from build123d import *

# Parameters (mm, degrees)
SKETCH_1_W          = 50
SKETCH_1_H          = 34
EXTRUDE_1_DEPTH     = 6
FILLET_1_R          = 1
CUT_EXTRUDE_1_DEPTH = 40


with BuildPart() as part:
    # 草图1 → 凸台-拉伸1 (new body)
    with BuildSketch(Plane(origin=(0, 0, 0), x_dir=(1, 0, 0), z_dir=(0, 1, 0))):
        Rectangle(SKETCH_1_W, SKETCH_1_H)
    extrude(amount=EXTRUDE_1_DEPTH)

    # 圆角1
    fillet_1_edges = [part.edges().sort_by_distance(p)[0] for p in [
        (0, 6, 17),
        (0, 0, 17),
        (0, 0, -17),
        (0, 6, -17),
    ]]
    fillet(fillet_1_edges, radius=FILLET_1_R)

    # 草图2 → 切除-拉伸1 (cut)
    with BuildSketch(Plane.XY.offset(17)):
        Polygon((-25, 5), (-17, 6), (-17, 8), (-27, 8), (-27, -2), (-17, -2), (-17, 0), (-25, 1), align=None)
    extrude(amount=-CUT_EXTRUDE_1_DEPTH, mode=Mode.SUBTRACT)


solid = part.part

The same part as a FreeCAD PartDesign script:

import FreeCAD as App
import Part
import Sketcher

V = App.Vector
Q = App.Units.Quantity


def edges_at(feature, points):
    """Names of the edges that pass closest to the given points."""
    edges = feature.Shape.Edges
    near = lambda p: min(range(len(edges)), key=lambda i: edges[i].distToShape(Part.Vertex(*p))[0])
    return sorted({f"Edge{near(p) + 1}" for p in points})


def add_polygon(sketch, points):
    """Adds a closed chain of lines whose ends are joined by coincident constraints."""
    first, n = sketch.GeometryCount, len(points)
    for a, b in zip(points, points[1:] + points[:1]):
        sketch.addGeometry(Part.LineSegment(App.Vector(*a, 0), App.Vector(*b, 0)), False)
    for i in range(n):
        sketch.addConstraint(Sketcher.Constraint("Coincident", first + i, 2, first + (i + 1) % n, 1))

doc = App.newDocument("Part")
body = doc.addObject("PartDesign::Body", "Body")

# Sketch on XZ plane
sketch1 = body.newObject("Sketcher::SketchObject", "Sketch")
sketch1.AttachmentSupport = (doc.getObject("XZ_Plane"), [""])
sketch1.MapMode = "FlatFace"
add_polygon(sketch1, [(-25, -17), (-25, 17), (25, 17), (25, -17)])  # lines 0-3
sketch1.addConstraint(Sketcher.Constraint("Vertical", 0))
sketch1.addConstraint(Sketcher.Constraint("Horizontal", 1))
sketch1.addConstraint(Sketcher.Constraint("Vertical", 2))
sketch1.addConstraint(Sketcher.Constraint("Horizontal", 3))
sketch1.addConstraint(Sketcher.Constraint("Symmetric", 0, 2, 2, 2, -1, 1))
sketch1.addConstraint(Sketcher.Constraint("DistanceX", 1, 1, 1, 2, Q("50 mm")))
sketch1.addConstraint(Sketcher.Constraint("DistanceY", 0, 1, 0, 2, Q("34 mm")))
pad1 = body.newObject("PartDesign::Pad", "Pad")
pad1.Profile = sketch1
pad1.Length = 6
pad1.Reversed = True
doc.recompute()

fillet = body.newObject("PartDesign::Fillet", "Fillet")
fillet.Base = (pad1, edges_at(pad1, [
    (0, 6, 17),
    (0, 0, 17),
    (0, 0, -17),
    (0, 6, -17),
]))
fillet.Radius = 1

# Sketch on XY plane
sketch2 = body.newObject("Sketcher::SketchObject", "Sketch001")
sketch2.AttachmentSupport = (doc.getObject("XY_Plane"), [""])
sketch2.MapMode = "FlatFace"
sketch2.AttachmentOffset = App.Placement(V(0, 0, 17), App.Rotation())
add_polygon(sketch2, [(-25, 5), (-17, 6), (-17, 8), (-27, 8), (-27, -2), (-17, -2), (-17, 0), (-25, 1)])  # lines 0-7
sketch2.addConstraint(Sketcher.Constraint("Vertical", 1))
sketch2.addConstraint(Sketcher.Constraint("Horizontal", 2))
sketch2.addConstraint(Sketcher.Constraint("Vertical", 3))
sketch2.addConstraint(Sketcher.Constraint("Horizontal", 4))
sketch2.addConstraint(Sketcher.Constraint("Vertical", 5))
sketch2.addConstraint(Sketcher.Constraint("Vertical", 7))
sketch2.addConstraint(Sketcher.Constraint("PointOnObject", 5, 2, -1))
sketch2.addConstraint(Sketcher.Constraint("Vertical", 1, 2, 4, 2))
sketch2.addConstraint(Sketcher.Constraint("Equal", 4, 3))
sketch2.addConstraint(Sketcher.Constraint("Equal", 1, 5))
sketch2.addConstraint(Sketcher.Constraint("Equal", 0, 6))
sketch2.addConstraint(Sketcher.Constraint("DistanceX", 2, 2, 2, 1, Q("10 mm")))
sketch2.addConstraint(Sketcher.Constraint("DistanceY", 1, 1, 1, 2, Q("2 mm")))
sketch2.addConstraint(Sketcher.Constraint("DistanceY", 7, 1, 7, 2, Q("4 mm")))
sketch2.addConstraint(Sketcher.Constraint("DistanceX", 0, 2, -1, 1, Q("17 mm")))
sketch2.addConstraint(Sketcher.Constraint("DistanceX", 6, 2, -1, 1, Q("25 mm")))
pocket1 = body.newObject("PartDesign::Pocket", "Pocket")
pocket1.Profile = sketch2
pocket1.Length = 40

doc.recompute()
